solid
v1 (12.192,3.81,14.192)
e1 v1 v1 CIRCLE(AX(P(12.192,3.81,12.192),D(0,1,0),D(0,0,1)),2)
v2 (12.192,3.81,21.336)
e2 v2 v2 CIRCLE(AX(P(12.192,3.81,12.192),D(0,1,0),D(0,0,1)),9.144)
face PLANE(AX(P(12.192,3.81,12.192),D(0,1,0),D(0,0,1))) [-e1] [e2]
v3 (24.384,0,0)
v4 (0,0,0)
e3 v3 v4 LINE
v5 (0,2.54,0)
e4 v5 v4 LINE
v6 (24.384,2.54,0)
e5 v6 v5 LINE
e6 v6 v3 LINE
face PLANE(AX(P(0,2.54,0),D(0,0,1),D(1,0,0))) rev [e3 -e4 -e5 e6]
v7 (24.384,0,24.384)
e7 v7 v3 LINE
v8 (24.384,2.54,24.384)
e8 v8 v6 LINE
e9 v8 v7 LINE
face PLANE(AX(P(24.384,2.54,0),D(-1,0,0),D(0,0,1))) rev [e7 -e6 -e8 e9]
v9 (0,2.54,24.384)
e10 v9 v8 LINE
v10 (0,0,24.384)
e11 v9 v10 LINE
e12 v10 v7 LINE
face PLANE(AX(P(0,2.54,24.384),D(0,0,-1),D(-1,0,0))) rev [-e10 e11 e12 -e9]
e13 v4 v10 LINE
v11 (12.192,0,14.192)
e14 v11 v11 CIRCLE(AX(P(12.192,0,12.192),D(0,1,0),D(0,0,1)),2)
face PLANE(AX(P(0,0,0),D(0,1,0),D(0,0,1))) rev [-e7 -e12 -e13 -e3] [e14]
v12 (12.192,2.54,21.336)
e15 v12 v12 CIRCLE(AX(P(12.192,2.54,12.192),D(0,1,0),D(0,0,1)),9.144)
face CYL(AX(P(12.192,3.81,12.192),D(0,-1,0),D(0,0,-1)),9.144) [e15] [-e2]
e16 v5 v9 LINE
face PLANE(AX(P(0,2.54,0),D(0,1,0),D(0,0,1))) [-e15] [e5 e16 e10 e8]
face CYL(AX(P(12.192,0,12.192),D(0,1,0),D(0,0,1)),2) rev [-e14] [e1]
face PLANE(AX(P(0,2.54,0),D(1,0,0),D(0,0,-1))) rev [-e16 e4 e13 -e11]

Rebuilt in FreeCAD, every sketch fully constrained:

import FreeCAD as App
import Part
import Sketcher
Q = App.Units.Quantity


def add_polygon(sketch, points):
    """Adds a closed chain of lines whose ends are joined by coincident constraints."""
    first, n = sketch.GeometryCount, len(points)
    for a, b in zip(points, points[1:] + points[:1]):
        sketch.addGeometry(Part.LineSegment(App.Vector(*a, 0), App.Vector(*b, 0)), False)
    for i in range(n):
        sketch.addConstraint(Sketcher.Constraint("Coincident", first + i, 2, first + (i + 1) % n, 1))

doc = App.newDocument("Part")
body = doc.addObject("PartDesign::Body", "Body")

# Sketch on XZ plane
sketch1 = body.newObject("Sketcher::SketchObject", "Sketch")
sketch1.AttachmentSupport = (doc.getObject("XZ_Plane"), [""])
sketch1.MapMode = "FlatFace"
add_polygon(sketch1, [(0, 0), (0, 24.384), (24.384, 24.384), (24.384, 0)])  # lines 0-3
sketch1.addConstraint([
    Sketcher.Constraint("Vertical", 0),
    Sketcher.Constraint("Horizontal", 1),
    Sketcher.Constraint("Vertical", 2),
    Sketcher.Constraint("Horizontal", 3),
    Sketcher.Constraint("Coincident", 3, 2, -1, 1),
    Sketcher.Constraint("Equal", 3, 0),
    Sketcher.Constraint("DistanceX", 1, 1, 1, 2, Q("0.96 in")),
])
pad1 = body.newObject("PartDesign::Pad", "Pad")
pad1.Profile = sketch1
pad1.Length = Q("0.1 in")
pad1.Reversed = True

# Sketch on XZ plane
sketch2 = body.newObject("Sketcher::SketchObject", "Sketch001")
sketch2.AttachmentSupport = (doc.getObject("XZ_Plane"), [""])
sketch2.MapMode = "FlatFace"
sketch2.AttachmentOffset = App.Placement(App.Vector(0, 0, -0.1 * 25.4), App.Rotation())
sketch2.addGeometry(Part.Circle(App.Vector(12.192, 12.192, 0), App.Vector(0, 0, 1), 9.144), False)
sketch2.addConstraint([
    Sketcher.Constraint("Diameter", 0, Q("0.72 in")),
    Sketcher.Constraint("DistanceX", -1, 1, 0, 3, Q("0.48 in")),
    Sketcher.Constraint("DistanceY", -1, 1, 0, 3, Q("0.48 in")),
])
pad2 = body.newObject("PartDesign::Pad", "Pad001")
pad2.Profile = sketch2
pad2.Length = Q("0.05 in")
pad2.Reversed = True

# Sketch on XZ plane
sketch3 = body.newObject("Sketcher::SketchObject", "Sketch002")
sketch3.AttachmentSupport = (doc.getObject("XZ_Plane"), [""])
sketch3.MapMode = "FlatFace"
sketch3.AttachmentOffset = App.Placement(App.Vector(0, 0, -0.15 * 25.4), App.Rotation())
sketch3.addGeometry(Part.Circle(App.Vector(12.192, 12.192, 0), App.Vector(0, 0, 1), 2), False)
sketch3.addConstraint([
    Sketcher.Constraint("Diameter", 0, 4.0),
    Sketcher.Constraint("DistanceX", -1, 1, 0, 3, Q("0.48 in")),
    Sketcher.Constraint("DistanceY", -1, 1, 0, 3, Q("0.48 in")),
])
pocket1 = body.newObject("PartDesign::Pocket", "Pocket")
pocket1.Profile = sketch3
pocket1.Type = "ThroughAll"
pocket1.Reversed = True

doc.recompute()
